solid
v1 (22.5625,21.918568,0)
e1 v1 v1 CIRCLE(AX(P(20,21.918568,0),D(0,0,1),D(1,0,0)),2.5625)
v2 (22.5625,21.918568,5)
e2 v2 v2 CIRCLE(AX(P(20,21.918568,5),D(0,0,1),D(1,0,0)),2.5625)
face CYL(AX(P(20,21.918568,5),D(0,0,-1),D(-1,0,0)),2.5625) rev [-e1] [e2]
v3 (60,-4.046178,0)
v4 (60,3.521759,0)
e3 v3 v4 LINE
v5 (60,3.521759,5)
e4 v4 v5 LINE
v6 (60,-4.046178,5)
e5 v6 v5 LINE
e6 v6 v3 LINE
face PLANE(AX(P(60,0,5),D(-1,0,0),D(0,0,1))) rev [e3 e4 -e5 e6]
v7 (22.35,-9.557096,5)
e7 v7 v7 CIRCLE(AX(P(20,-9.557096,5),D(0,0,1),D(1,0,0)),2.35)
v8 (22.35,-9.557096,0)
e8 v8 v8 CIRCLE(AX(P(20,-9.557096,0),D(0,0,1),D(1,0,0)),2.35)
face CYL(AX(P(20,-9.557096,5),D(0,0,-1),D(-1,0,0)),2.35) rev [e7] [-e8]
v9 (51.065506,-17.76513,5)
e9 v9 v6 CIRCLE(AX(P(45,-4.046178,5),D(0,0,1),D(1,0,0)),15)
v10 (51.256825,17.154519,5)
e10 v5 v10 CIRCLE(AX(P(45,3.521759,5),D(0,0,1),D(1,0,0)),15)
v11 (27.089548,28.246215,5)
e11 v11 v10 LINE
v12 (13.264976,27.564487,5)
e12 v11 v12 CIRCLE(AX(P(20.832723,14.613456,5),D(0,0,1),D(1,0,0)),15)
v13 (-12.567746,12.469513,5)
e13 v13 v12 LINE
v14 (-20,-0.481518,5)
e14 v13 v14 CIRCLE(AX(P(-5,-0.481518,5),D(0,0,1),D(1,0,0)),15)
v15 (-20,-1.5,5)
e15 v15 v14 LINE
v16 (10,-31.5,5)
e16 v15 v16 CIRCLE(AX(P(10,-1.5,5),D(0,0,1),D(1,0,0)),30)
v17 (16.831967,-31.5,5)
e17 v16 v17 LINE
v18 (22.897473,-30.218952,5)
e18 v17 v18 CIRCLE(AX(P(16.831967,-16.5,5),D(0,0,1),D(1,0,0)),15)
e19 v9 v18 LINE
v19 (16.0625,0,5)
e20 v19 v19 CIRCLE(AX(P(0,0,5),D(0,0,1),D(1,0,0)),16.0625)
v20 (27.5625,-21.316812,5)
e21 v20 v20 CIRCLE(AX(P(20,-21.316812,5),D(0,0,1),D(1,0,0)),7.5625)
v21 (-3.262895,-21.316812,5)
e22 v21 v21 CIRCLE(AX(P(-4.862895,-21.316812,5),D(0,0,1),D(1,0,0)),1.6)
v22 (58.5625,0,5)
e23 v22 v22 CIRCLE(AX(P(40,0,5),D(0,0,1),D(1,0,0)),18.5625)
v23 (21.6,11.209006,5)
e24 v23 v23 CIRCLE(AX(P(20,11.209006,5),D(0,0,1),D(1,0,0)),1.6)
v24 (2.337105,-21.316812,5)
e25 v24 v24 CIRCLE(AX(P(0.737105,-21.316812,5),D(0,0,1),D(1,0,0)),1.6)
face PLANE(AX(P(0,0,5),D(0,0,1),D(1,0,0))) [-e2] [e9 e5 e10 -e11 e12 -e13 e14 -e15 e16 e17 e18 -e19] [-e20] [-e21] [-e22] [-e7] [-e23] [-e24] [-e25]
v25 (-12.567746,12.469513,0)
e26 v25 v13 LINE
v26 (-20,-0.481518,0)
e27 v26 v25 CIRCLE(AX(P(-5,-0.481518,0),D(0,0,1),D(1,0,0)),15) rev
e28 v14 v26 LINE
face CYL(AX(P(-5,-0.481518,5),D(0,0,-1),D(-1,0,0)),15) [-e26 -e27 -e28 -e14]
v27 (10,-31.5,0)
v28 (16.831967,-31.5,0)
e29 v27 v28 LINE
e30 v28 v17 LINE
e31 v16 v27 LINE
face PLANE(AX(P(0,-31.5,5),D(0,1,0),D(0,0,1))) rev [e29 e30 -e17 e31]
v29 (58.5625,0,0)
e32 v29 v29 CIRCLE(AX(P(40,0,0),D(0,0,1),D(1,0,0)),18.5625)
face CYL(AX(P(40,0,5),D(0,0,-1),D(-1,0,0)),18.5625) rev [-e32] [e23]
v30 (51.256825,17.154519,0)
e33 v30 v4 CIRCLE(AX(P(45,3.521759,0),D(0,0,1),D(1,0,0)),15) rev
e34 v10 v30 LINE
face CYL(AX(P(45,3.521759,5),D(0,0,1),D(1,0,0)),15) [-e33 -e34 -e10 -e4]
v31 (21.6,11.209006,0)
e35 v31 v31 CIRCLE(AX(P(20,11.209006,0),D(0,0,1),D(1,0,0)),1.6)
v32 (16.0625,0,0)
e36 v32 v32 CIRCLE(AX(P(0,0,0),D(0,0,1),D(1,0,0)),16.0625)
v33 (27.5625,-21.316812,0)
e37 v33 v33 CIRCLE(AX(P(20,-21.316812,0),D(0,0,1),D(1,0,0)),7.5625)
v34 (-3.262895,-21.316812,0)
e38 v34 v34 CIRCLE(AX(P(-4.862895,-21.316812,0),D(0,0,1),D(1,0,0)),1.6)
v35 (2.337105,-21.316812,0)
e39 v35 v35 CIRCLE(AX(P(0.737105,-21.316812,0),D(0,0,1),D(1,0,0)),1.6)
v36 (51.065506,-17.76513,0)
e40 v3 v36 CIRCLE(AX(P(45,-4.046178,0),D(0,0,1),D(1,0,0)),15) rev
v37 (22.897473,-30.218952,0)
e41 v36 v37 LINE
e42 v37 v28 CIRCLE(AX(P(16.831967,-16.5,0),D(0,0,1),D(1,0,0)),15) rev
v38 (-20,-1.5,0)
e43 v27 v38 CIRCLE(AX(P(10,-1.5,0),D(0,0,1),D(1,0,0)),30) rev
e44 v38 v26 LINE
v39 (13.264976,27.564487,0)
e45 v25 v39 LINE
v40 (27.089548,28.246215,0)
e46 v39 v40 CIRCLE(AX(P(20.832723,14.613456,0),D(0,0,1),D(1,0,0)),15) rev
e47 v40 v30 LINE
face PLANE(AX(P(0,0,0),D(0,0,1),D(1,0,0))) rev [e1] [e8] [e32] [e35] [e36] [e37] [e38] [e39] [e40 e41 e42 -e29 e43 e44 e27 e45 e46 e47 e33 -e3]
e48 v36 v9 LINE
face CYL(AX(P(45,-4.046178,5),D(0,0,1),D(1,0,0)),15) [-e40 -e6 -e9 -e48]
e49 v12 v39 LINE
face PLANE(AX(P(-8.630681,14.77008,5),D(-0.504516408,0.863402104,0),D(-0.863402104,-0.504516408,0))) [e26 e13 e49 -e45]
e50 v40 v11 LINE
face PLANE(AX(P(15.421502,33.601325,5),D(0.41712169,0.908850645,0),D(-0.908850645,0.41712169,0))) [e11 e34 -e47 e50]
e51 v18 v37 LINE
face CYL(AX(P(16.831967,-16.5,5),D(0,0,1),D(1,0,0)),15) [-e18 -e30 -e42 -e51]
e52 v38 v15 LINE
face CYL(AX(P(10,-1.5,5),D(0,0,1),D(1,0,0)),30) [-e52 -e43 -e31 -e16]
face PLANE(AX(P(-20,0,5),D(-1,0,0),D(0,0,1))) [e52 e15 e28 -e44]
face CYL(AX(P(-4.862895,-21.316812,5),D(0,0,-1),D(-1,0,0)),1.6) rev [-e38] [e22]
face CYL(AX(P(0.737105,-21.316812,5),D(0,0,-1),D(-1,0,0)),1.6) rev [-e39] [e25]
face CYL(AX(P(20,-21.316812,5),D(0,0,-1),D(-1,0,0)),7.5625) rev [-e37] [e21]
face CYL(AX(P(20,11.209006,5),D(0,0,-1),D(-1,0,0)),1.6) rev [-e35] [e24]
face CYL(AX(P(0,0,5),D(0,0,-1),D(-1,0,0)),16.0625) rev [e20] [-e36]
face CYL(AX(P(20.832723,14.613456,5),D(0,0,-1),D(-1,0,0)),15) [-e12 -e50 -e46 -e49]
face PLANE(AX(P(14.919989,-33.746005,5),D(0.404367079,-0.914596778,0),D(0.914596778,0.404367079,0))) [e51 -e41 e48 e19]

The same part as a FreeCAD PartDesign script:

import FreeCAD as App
import Part
import Sketcher
from FreeCAD import Vector


def edges_at(feature, points):
    """Names of the edges that pass closest to the given points."""
    edges = feature.Shape.Edges
    near = lambda p: min(range(len(edges)), key=lambda i: edges[i].distToShape(Part.Vertex(*p))[0])
    return sorted({f"Edge{near(p) + 1}" for p in points})

doc = App.newDocument("Part")
body = doc.addObject("PartDesign::Body", "Body")

# Sketch on XY plane
sketch1 = doc.addObject("Sketcher::SketchObject", "Sketch")
body.addObject(sketch1)
sketch1.AttachmentSupport = (doc.XY_Plane, [""])
sketch1.MapMode = "FlatFace"
sketch1.addGeometry([
    Part.LineSegment(Vector(-20, -31.5, 0), Vector(20, -31.5, 0)),  # 0
    Part.LineSegment(Vector(20, -31.5, 0), Vector(60, -13.8, 0)),  # 1
    Part.LineSegment(Vector(60, -13.8, 0), Vector(60, 13.1, 0)),  # 2
    Part.LineSegment(Vector(60, 13.1, 0), Vector(20, 31.5, 0)),  # 3
    Part.LineSegment(Vector(20, 31.5, 0), Vector(-20, 8.1, 0)),  # 4
    Part.LineSegment(Vector(-20, 8.1, 0), Vector(-20, -31.5, 0)),  # 5
    Part.Circle(Vector(-4.9, -21.3, 0), Vector(0, 0, 1), 1.6),  # 6
    Part.Circle(Vector(0.7, -21.3, 0), Vector(0, 0, 1), 1.6),  # 7
    Part.Circle(Vector(20, -21.3, 0), Vector(0, 0, 1), 7.6),  # 8
    Part.Circle(Vector(20, -9.6, 0), Vector(0, 0, 1), 2.4),  # 9
    Part.Circle(Vector(0, 0, 0), Vector(0, 0, 1), 16.1),  # 10
    Part.Circle(Vector(20, 11.2, 0), Vector(0, 0, 1), 1.6),  # 11
    Part.Circle(Vector(20, 21.9, 0), Vector(0, 0, 1), 2.6),  # 12
    Part.Circle(Vector(40, 0, 0), Vector(0, 0, 1), 18.6),  # 13
], False)
sketch1.addConstraint([
    Sketcher.Constraint("Coincident", 0, 2, 1, 1),
    Sketcher.Constraint("Coincident", 1, 2, 2, 1),
    Sketcher.Constraint("Coincident", 2, 2, 3, 1),
    Sketcher.Constraint("Coincident", 3, 2, 4, 1),
    Sketcher.Constraint("Coincident", 4, 2, 5, 1),
    Sketcher.Constraint("Coincident", 5, 2, 0, 1),
    Sketcher.Constraint("Horizontal", 0),
    Sketcher.Constraint("Vertical", 2),
    Sketcher.Constraint("Vertical", 5),
    Sketcher.Constraint("Coincident", 10, 3, -1, 1),
    Sketcher.Constraint("Equal", 6, 7),
    Sketcher.Constraint("Equal", 7, 11),
    Sketcher.Constraint("Symmetric", 3, 2, 5, 2, -1, 1),
    Sketcher.Constraint("PointOnObject", 13, 3, -1),
    Sketcher.Constraint("Horizontal", 6, 3, 7, 3),
    Sketcher.Constraint("Horizontal", 7, 3, 8, 3),
    Sketcher.Constraint("Vertical", 8, 3, 9, 3),
    Sketcher.Constraint("Vertical", 9, 3, 11, 3),
    Sketcher.Constraint("Vertical", 11, 3, 12, 3),
    Sketcher.Constraint("Vertical", 12, 3, 0, 2),
    Sketcher.Constraint("Vertical", 0, 2, 3, 2),
    Sketcher.Constraint("Diameter", 6, 3.2),
    Sketcher.Constraint("Diameter", 9, 4.7),
    Sketcher.Constraint("DistanceX", 0, 1, 0, 2, 40.0),
    Sketcher.Constraint("Diameter", 8, 15.125),
    Sketcher.Constraint("Diameter", 10, 32.125),
    Sketcher.Constraint("Diameter", 12, 5.125),
    Sketcher.Constraint("Diameter", 13, 37.125),
    Sketcher.Constraint("DistanceX", -1, 1, 13, 3, 40.0),
    Sketcher.Constraint("DistanceX", -1, 1, 1, 2, 60.0),
    Sketcher.Constraint("DistanceY", 0, 2, -1, 1, 31.5),
    Sketcher.Constraint("DistanceX", 6, 3, 7, 3, 5.6),
    Sketcher.Constraint("DistanceY", 2, 1, 2, 2, 26.956751),
    Sketcher.Constraint("DistanceY", 9, 3, 11, 3, 20.766102),
    Sketcher.Constraint("Distance", 1, 43.73512),
    Sketcher.Constraint("DistanceY", 5, 2, 5, 1, 39.626584),
    Sketcher.Constraint("DistanceY", 6, 3, -1, 1, 21.316812),
    Sketcher.Constraint("DistanceY", 11, 3, 12, 3, 10.709562),
    Sketcher.Constraint("DistanceY", 8, 3, 12, 3, 43.23538),
    Sketcher.Constraint("DistanceX", 6, 3, -1, 1, 4.862895),
])
pad1 = doc.addObject("PartDesign::Pad", "Pad")
body.addObject(pad1)
pad1.Profile = sketch1
pad1.Length = 5
doc.recompute()

fillet = doc.addObject("PartDesign::Fillet", "Fillet")
body.addObject(fillet)
fillet.Base = (pad1, edges_at(pad1, [
    (20, -31.5, 2.5),
    (-20, 8.127, 2.5),
    (20, 31.5, 2.5),
    (60, 13.142, 2.5),
    (60, -13.815, 2.5),
]))
fillet.Radius = 15
doc.recompute()

fillet2 = doc.addObject("PartDesign::Fillet", "Fillet001")
body.addObject(fillet2)
fillet2.Base = (fillet, edges_at(fillet, [(-20, -31.5, 2.5)]))
fillet2.Radius = 30

doc.recompute()
